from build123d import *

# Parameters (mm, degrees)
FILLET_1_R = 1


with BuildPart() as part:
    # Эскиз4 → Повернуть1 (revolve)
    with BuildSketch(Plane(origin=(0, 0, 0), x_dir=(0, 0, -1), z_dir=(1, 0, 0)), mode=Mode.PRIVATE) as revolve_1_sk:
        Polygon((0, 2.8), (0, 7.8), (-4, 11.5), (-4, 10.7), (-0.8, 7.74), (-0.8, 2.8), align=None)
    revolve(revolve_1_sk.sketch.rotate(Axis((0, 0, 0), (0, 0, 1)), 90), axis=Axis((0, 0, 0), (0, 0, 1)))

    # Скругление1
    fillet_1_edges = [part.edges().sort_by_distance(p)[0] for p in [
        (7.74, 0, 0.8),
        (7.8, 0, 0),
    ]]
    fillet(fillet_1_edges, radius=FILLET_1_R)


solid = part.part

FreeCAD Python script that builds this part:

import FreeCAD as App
import Part
import Sketcher
from FreeCAD import Vector


def edges_at(feature, points):
    """Names of the edges that pass closest to the given points."""
    edges = feature.Shape.Edges
    near = lambda p: min(range(len(edges)), key=lambda i: edges[i].distToShape(Part.Vertex(*p))[0])
    return sorted({f"Edge{near(p) + 1}" for p in points})

doc = App.newDocument("Part")
body = doc.addObject("PartDesign::Body", "Body")

# Sketch on YZ plane
sketch1 = doc.addObject("Sketcher::SketchObject", "Sketch")
body.addObject(sketch1)
sketch1.AttachmentSupport = (doc.YZ_Plane, [""])
sketch1.MapMode = "FlatFace"
sketch1.addGeometry([
    Part.LineSegment(Vector(2.8, 0, 0), Vector(7.8, 0, 0)),  # 0
    Part.LineSegment(Vector(7.8, 0, 0), Vector(11.5, 4, 0)),  # 1
    Part.LineSegment(Vector(11.5, 4, 0), Vector(10.7, 4, 0)),  # 2
    Part.LineSegment(Vector(10.7, 4, 0), Vector(7.74, 0.8, 0)),  # 3
    Part.LineSegment(Vector(7.74, 0.8, 0), Vector(2.8, 0.8, 0)),  # 4
    Part.LineSegment(Vector(2.8, 0.8, 0), Vector(2.8, 0, 0)),  # 5
], False)
sketch1.addConstraint([
    Sketcher.Constraint("Coincident", 0, 2, 1, 1),
    Sketcher.Constraint("Coincident", 1, 2, 2, 1),
    Sketcher.Constraint("Coincident", 2, 2, 3, 1),
    Sketcher.Constraint("Coincident", 3, 2, 4, 1),
    Sketcher.Constraint("Coincident", 4, 2, 5, 1),
    Sketcher.Constraint("Coincident", 5, 2, 0, 1),
    Sketcher.Constraint("Horizontal", 0),
    Sketcher.Constraint("Horizontal", 2),
    Sketcher.Constraint("Horizontal", 4),
    Sketcher.Constraint("Vertical", 5),
    Sketcher.Constraint("PointOnObject", 0, 2, -1),
    Sketcher.Constraint("Parallel", 1, 3),
    Sketcher.Constraint("Equal", 2, 5),
    Sketcher.Constraint("DistanceX", 0, 1, 0, 2, 5.0),
    Sketcher.Constraint("DistanceX", 2, 2, 2, 1, 0.8),
    Sketcher.Constraint("DistanceY", -1, 1, 1, 2, 4.0),
    Sketcher.Constraint("DistanceX", 4, 2, 4, 1, 4.94),
    Sketcher.Constraint("DistanceX", -1, 1, 0, 2, 7.8),
])
revolution = doc.addObject("PartDesign::Revolution", "Revolution")
body.addObject(revolution)
revolution.Profile = sketch1
revolution.ReferenceAxis = (sketch1, ["V_Axis"])
revolution.Angle = 360
doc.recompute()

fillet = doc.addObject("PartDesign::Fillet", "Fillet")
body.addObject(fillet)
fillet.Base = (revolution, edges_at(revolution, [(7.74, 0, 0.8), (7.8, 0, 0)]))
fillet.Radius = 1

doc.recompute()
